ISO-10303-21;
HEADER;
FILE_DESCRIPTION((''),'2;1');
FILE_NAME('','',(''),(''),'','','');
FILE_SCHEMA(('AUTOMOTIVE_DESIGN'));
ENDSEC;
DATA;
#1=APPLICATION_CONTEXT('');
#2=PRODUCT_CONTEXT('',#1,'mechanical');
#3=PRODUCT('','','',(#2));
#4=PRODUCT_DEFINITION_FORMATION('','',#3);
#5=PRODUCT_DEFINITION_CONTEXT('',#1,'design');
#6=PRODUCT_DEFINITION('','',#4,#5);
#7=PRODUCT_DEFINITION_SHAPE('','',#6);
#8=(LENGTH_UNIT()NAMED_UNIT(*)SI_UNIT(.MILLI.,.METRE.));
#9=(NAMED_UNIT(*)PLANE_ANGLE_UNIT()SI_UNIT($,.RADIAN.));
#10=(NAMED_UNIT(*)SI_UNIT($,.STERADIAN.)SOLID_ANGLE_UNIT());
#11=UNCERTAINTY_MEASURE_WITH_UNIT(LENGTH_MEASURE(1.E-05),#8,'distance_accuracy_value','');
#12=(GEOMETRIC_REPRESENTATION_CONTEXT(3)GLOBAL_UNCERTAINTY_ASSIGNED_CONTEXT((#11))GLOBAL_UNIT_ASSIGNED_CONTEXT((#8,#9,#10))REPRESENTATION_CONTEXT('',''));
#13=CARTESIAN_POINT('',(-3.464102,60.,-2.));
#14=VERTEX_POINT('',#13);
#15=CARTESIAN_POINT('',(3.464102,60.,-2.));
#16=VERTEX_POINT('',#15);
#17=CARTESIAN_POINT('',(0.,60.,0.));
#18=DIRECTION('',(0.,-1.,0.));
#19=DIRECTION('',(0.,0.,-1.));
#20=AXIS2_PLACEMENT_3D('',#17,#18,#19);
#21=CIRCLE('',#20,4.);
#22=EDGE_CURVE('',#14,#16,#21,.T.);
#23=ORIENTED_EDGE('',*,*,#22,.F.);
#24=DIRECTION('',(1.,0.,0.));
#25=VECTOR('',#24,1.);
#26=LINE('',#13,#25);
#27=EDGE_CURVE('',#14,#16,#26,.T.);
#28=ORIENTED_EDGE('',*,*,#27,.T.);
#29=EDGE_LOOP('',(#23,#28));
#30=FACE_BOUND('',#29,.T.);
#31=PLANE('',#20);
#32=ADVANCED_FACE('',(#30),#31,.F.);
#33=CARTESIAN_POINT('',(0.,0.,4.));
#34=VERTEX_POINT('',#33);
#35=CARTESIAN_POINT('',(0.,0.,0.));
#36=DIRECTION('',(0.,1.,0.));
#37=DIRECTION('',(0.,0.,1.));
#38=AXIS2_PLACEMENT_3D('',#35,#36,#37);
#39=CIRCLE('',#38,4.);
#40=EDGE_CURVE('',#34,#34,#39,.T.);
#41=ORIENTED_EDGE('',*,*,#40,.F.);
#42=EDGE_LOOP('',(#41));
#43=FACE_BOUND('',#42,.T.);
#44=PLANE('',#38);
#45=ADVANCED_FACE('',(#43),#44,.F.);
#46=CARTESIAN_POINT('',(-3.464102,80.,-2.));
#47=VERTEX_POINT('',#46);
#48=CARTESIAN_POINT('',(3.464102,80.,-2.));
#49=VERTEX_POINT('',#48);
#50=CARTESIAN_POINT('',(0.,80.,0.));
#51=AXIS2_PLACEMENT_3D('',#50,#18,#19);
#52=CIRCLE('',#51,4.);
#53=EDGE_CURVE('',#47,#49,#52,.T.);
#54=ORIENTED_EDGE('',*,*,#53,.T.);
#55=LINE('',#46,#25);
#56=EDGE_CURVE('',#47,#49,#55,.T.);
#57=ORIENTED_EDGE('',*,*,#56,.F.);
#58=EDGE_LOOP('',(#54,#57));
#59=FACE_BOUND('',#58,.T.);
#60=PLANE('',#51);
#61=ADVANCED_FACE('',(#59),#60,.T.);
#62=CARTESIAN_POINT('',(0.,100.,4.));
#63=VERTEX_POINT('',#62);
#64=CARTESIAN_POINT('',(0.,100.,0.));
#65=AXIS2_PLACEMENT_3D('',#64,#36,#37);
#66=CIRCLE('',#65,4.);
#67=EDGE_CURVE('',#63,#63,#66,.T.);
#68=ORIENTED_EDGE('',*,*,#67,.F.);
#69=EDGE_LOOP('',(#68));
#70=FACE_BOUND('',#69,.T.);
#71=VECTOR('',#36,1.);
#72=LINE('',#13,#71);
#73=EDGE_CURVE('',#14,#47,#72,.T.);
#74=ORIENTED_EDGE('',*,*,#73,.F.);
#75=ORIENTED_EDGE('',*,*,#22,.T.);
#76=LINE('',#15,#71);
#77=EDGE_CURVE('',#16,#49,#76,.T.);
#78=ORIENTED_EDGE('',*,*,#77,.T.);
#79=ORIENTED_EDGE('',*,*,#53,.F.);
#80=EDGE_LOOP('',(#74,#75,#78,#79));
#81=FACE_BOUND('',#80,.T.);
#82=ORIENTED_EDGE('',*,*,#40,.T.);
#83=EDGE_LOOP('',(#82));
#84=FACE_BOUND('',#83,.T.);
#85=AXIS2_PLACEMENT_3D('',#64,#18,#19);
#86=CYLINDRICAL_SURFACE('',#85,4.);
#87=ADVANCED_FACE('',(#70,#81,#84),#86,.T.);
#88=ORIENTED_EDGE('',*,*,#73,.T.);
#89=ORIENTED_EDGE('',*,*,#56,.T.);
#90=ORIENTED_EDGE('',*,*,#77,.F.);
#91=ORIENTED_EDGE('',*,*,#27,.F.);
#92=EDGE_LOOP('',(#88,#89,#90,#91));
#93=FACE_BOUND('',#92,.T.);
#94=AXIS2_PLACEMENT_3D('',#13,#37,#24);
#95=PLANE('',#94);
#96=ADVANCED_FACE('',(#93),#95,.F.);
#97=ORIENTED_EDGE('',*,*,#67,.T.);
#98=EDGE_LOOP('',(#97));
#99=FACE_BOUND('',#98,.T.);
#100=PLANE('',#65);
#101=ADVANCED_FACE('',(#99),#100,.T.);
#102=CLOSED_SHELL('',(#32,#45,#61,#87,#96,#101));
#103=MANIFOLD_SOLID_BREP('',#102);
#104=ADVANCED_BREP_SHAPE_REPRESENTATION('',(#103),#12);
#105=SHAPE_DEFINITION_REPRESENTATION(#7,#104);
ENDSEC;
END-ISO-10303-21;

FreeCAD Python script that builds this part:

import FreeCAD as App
import Part
import Sketcher

V = App.Vector


def add_polygon(sketch, points):
    """Adds a closed chain of lines whose ends are joined by coincident constraints."""
    first, n = sketch.GeometryCount, len(points)
    for a, b in zip(points, points[1:] + points[:1]):
        sketch.addGeometry(Part.LineSegment(App.Vector(*a, 0), App.Vector(*b, 0)), False)
    for i in range(n):
        sketch.addConstraint(Sketcher.Constraint("Coincident", first + i, 2, first + (i + 1) % n, 1))

doc = App.newDocument("Part")
body = doc.addObject("PartDesign::Body", "Body")

sketch1 = body.newObject("Sketcher::SketchObject", "Sketch")
sketch1.AttachmentSupport = (doc.getObject("XZ_Plane"), [""])
sketch1.MapMode = "FlatFace"
sketch1.addGeometry(Part.Circle(V(0, 0, 0), V(0, 0, 1), 4), False)
sketch1.addConstraint(Sketcher.Constraint("Coincident", 0, 3, -1, 1))
sketch1.addConstraint(Sketcher.Constraint("Diameter", 0, 8.0))
pad1 = body.newObject("PartDesign::Pad", "Pad")
pad1.Profile = sketch1
pad1.Length = 100
pad1.Reversed = True

sketch2 = body.newObject("Sketcher::SketchObject", "Sketch001")
sketch2.AttachmentSupport = (doc.getObject("XZ_Plane"), [""])
sketch2.MapMode = "FlatFace"
sketch2.AttachmentOffset = App.Placement(V(0, 0, -80), App.Rotation())
add_polygon(sketch2, [(-3.464102, -10), (-3.464102, -2), (3.464102, -2), (3.464102, -10)])
sketch2.addConstraint(Sketcher.Constraint("Vertical", 0))
sketch2.addConstraint(Sketcher.Constraint("Horizontal", 1))
sketch2.addConstraint(Sketcher.Constraint("Vertical", 2))
sketch2.addConstraint(Sketcher.Constraint("Horizontal", 3))
sketch2.addConstraint(Sketcher.Constraint("DistanceY", 0, 1, 0, 2, 8.0))
sketch2.addConstraint(Sketcher.Constraint("DistanceY", 0, 2, -1, 1, 2.0))
sketch2.addConstraint(Sketcher.Constraint("DistanceX", 0, 2, -1, 1, 3.464102))
sketch2.addConstraint(Sketcher.Constraint("DistanceX", -1, 1, 1, 2, 3.464102))
pocket1 = body.newObject("PartDesign::Pocket", "Pocket")
pocket1.Profile = sketch2
pocket1.Length = 20
pocket1.Reversed = True

doc.recompute()
